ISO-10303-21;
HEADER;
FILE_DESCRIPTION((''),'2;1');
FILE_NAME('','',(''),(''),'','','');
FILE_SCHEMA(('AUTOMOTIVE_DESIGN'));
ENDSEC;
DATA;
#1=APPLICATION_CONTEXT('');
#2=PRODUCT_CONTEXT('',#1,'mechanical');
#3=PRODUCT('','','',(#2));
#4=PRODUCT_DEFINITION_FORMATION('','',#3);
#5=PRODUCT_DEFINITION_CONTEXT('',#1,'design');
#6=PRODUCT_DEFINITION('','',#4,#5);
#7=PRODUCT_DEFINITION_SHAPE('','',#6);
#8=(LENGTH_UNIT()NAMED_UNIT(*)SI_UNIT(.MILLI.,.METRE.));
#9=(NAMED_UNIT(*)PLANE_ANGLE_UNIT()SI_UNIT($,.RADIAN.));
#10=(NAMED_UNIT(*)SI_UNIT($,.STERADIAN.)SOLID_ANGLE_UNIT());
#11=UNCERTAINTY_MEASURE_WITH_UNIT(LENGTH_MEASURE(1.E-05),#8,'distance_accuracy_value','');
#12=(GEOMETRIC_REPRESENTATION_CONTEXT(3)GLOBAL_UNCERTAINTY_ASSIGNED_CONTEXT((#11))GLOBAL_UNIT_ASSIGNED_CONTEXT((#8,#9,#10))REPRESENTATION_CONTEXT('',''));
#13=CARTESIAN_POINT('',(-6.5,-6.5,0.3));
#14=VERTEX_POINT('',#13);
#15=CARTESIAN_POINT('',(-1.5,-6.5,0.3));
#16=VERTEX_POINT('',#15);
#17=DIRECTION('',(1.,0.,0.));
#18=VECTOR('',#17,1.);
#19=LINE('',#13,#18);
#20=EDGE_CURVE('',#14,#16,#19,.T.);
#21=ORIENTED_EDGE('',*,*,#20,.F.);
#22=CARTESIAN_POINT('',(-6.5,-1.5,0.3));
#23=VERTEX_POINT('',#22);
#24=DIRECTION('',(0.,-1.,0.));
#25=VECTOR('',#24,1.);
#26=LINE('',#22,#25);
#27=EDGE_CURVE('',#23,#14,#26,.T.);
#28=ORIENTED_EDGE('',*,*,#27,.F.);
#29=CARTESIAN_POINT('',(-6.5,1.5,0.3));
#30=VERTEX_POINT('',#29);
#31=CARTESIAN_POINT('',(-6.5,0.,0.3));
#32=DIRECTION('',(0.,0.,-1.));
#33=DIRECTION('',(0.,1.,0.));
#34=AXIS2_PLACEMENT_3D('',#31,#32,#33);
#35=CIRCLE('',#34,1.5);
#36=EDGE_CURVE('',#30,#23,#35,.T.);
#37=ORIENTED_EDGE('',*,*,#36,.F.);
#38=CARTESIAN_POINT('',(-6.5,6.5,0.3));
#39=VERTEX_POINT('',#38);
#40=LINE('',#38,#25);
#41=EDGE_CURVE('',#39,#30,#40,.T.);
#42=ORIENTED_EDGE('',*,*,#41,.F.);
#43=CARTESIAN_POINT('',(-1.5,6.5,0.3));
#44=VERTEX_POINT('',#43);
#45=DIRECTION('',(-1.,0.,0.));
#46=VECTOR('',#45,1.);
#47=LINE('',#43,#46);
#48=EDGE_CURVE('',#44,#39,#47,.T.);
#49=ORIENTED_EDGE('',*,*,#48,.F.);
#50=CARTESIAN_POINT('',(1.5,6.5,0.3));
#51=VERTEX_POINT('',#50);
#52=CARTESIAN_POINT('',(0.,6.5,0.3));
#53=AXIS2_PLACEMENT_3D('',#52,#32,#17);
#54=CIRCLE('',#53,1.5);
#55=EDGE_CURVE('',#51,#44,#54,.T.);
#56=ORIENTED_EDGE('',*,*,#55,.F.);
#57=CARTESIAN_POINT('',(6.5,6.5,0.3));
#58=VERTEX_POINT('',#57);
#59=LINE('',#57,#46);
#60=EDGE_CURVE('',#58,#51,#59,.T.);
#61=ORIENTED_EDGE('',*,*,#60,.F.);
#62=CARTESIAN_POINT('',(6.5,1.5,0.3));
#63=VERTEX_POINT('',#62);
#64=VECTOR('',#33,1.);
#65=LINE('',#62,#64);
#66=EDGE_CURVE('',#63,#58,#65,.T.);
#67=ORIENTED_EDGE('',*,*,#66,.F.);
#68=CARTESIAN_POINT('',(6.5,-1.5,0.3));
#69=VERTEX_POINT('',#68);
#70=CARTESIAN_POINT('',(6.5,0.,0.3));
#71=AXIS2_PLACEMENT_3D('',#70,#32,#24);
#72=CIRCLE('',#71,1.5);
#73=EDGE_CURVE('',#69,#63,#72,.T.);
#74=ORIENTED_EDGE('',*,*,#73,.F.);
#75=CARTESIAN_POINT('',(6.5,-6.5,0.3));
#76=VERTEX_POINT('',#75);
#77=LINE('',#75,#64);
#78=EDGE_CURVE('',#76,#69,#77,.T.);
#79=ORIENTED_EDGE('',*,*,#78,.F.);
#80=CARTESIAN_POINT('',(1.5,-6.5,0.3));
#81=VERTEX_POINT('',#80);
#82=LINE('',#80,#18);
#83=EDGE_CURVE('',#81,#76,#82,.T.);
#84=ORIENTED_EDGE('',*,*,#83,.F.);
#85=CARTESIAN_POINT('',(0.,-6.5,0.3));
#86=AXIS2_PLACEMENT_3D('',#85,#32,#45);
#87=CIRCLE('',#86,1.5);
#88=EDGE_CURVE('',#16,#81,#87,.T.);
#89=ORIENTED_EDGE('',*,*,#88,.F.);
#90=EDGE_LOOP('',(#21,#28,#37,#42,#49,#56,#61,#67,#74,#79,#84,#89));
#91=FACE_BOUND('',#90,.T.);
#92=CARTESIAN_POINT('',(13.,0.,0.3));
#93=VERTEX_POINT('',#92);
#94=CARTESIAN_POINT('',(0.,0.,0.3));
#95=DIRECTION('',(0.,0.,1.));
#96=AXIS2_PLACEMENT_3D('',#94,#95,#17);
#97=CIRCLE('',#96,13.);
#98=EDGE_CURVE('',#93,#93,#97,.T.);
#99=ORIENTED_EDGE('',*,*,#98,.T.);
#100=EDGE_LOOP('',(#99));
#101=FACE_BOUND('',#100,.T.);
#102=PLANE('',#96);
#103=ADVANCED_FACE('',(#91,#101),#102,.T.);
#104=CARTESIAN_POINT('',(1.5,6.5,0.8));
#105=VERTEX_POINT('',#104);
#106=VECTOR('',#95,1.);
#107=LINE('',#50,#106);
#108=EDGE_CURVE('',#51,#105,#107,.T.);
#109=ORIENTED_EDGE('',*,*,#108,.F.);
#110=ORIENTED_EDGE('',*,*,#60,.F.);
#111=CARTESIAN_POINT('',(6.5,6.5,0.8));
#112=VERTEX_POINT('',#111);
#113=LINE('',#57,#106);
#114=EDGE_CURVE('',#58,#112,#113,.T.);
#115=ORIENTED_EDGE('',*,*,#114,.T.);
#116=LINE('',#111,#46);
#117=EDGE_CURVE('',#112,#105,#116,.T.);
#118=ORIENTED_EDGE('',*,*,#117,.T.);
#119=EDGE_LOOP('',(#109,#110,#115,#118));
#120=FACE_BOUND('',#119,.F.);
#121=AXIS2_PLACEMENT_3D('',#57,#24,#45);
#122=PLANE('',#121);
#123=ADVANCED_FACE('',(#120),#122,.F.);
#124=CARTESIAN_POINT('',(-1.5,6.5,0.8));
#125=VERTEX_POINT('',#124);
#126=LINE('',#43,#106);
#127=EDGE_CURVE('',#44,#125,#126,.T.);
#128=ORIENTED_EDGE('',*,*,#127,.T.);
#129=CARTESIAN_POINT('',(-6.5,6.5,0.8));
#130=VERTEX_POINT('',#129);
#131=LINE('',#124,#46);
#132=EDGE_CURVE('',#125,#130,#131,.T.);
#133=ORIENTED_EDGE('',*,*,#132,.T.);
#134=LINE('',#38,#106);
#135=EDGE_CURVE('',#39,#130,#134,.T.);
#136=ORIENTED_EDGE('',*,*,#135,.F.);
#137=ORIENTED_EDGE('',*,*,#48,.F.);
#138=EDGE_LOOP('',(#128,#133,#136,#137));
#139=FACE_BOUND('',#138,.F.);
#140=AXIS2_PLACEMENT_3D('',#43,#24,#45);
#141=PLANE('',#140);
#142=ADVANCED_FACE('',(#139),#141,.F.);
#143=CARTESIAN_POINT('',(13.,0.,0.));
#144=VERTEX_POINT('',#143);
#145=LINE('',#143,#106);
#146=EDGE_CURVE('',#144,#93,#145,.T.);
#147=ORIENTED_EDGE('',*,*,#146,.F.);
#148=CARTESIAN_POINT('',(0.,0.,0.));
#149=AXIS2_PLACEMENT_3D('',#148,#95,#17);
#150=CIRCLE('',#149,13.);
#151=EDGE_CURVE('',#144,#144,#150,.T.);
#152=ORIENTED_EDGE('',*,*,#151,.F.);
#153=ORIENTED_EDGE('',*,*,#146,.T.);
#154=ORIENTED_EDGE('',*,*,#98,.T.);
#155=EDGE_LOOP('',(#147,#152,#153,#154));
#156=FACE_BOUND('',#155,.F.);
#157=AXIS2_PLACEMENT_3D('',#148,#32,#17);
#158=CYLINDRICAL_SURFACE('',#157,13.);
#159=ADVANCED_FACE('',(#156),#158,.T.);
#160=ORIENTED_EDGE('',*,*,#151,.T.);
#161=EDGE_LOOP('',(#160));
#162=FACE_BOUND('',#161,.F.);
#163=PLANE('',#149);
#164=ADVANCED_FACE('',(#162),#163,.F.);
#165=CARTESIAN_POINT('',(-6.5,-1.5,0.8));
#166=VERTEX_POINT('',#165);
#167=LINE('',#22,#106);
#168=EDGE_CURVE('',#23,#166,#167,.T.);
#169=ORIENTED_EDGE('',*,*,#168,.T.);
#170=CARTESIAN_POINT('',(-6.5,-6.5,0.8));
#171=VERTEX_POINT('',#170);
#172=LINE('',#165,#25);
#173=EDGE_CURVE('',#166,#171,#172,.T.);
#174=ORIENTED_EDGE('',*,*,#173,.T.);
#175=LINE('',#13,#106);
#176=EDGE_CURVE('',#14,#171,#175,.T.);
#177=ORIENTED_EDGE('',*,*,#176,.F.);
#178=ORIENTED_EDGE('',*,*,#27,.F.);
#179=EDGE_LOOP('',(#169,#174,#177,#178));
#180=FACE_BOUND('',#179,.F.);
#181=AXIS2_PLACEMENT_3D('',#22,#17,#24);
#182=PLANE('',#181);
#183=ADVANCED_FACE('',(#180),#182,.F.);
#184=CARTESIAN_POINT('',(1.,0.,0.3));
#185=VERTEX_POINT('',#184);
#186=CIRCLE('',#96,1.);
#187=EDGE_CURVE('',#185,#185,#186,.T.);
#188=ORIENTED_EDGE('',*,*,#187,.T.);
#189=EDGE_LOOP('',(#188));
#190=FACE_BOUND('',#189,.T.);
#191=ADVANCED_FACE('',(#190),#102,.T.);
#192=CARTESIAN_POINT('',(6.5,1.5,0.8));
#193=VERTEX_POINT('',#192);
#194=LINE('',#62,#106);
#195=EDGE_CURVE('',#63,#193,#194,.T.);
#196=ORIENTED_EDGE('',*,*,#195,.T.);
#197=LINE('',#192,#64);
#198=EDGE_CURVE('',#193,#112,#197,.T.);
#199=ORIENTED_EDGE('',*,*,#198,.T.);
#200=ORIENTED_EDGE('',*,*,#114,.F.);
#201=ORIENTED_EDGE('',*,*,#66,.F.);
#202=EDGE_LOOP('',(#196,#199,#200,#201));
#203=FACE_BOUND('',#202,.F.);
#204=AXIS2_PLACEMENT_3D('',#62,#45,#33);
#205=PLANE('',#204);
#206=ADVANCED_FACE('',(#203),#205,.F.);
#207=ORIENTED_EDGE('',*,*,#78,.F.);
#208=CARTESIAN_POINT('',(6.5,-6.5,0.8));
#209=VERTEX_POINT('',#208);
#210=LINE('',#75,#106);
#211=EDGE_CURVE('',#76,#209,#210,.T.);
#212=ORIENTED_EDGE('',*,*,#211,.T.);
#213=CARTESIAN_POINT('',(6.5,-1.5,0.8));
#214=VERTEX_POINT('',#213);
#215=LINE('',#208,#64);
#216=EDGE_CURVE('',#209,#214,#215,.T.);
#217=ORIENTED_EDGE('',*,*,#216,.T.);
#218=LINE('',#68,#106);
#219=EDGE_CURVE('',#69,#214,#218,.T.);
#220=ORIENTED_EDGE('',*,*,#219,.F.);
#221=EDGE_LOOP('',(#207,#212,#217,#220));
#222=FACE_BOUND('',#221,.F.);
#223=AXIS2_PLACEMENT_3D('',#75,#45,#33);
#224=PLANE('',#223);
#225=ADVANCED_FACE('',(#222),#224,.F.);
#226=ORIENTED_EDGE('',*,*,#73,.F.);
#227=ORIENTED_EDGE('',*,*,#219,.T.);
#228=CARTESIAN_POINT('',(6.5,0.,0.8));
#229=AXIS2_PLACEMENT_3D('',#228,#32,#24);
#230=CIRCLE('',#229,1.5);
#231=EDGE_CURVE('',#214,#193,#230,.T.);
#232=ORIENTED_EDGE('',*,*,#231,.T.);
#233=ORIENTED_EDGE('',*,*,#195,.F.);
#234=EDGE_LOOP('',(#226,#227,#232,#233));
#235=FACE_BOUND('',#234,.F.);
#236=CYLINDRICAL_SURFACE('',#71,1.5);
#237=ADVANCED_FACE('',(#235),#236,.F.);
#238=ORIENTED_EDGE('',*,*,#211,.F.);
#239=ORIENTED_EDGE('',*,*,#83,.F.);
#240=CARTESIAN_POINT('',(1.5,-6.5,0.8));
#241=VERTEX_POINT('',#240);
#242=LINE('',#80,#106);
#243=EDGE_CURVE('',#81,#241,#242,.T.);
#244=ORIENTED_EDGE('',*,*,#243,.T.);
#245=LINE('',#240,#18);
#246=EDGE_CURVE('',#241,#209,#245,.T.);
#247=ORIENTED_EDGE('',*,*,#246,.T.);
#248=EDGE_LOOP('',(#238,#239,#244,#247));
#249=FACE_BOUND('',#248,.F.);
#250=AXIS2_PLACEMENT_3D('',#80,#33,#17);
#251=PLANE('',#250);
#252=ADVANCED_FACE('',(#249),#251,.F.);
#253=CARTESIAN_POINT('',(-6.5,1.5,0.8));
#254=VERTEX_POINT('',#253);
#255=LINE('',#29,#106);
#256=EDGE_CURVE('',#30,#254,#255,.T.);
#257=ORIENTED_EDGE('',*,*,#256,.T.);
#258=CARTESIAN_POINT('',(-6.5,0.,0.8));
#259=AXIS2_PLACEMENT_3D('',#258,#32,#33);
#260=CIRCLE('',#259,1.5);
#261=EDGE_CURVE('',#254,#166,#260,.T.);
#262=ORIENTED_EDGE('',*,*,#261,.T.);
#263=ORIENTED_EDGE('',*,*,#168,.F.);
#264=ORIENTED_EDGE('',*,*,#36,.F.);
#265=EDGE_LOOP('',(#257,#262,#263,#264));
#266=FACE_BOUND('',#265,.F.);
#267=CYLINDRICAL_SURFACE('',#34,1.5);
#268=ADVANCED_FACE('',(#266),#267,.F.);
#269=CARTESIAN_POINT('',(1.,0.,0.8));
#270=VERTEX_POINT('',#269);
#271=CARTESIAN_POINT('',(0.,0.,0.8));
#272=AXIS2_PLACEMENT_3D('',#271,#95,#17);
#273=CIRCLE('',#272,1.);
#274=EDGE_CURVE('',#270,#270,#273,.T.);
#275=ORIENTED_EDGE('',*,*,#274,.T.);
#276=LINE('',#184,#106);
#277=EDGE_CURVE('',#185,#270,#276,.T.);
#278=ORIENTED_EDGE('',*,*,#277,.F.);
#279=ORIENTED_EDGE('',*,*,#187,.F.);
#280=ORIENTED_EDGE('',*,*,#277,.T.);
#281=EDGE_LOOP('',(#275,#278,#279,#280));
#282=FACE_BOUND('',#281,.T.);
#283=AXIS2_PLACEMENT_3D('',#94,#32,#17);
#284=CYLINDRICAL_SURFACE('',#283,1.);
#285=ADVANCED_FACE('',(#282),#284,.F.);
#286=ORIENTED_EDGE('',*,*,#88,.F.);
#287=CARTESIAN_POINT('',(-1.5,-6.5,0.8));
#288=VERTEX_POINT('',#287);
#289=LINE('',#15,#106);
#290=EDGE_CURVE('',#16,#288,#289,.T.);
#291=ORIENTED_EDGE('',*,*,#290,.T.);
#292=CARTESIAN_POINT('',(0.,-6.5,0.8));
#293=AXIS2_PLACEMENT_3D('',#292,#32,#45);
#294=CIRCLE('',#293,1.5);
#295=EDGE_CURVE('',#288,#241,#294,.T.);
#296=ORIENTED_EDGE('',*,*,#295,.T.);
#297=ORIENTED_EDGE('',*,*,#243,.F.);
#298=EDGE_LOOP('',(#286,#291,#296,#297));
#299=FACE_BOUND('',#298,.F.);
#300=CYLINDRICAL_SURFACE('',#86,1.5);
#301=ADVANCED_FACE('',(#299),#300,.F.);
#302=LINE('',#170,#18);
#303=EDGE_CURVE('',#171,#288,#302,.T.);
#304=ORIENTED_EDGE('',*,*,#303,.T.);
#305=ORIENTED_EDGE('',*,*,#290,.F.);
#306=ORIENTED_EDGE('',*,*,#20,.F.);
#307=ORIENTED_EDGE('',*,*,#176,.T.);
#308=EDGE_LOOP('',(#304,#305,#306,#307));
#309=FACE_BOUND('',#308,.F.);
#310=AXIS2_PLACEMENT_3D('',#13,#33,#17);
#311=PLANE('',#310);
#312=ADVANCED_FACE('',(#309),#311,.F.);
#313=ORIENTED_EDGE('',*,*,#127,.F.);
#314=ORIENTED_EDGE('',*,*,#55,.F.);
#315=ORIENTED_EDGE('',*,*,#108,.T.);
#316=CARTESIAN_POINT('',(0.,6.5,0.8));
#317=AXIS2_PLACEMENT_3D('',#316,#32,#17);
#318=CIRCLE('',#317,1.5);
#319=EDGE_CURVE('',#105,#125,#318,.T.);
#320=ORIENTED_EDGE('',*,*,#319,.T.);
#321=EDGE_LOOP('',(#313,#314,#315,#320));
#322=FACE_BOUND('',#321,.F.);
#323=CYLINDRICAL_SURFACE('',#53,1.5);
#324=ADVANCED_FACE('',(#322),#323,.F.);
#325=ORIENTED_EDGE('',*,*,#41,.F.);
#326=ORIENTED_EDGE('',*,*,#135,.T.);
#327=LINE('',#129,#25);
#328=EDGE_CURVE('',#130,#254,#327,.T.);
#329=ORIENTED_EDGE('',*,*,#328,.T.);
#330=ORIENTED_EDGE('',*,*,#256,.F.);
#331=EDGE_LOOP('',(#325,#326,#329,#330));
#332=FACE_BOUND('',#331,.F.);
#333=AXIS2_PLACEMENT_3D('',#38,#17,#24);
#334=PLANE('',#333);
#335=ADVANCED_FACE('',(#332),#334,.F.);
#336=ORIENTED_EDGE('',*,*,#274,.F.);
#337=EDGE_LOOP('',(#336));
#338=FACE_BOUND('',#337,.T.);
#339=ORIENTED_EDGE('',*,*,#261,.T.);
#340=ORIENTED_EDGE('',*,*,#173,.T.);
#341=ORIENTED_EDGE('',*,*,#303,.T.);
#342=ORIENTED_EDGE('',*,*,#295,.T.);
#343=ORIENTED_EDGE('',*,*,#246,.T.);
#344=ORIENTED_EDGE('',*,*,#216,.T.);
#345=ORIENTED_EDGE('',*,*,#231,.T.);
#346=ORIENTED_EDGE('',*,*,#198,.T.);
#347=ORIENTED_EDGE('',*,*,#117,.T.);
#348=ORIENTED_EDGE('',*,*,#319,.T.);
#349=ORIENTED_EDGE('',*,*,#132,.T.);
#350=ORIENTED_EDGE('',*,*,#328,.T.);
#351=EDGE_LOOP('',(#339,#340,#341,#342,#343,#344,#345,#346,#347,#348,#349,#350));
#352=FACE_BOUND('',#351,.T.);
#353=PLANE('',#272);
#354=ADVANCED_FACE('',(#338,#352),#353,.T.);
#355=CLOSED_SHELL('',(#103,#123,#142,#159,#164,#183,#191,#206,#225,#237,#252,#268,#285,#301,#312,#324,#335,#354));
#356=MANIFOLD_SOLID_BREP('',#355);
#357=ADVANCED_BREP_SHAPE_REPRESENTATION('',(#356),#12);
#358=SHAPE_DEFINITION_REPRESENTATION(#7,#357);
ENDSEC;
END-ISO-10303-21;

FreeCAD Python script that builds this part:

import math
import FreeCAD as App
import Part
import Sketcher

doc = App.newDocument("Part")
params = doc.addObject("Spreadsheet::Sheet", "Params")
for row, (alias, value) in enumerate([
    ("sketch1_diameter", "26 mm"),
    ("pad1_length", "0.3 mm"),
    ("sketch2_diameter", "2 mm"),
    ("sketch2_radius", "1.5 mm"),
    ("sketch2_width", "5 mm"),
    ("pad2_length", "0.5 mm"),
], start=1):
    params.set(f"A{row}", alias)
    params.set(f"B{row}", "=" + value)
    params.setAlias(f"B{row}", alias)

body = doc.addObject("PartDesign::Body", "Body")

# Sketch on XY plane
sketch1 = body.newObject("Sketcher::SketchObject", "Sketch")
sketch1.AttachmentSupport = (doc.getObject("XY_Plane"), [""])
sketch1.MapMode = "FlatFace"
sketch1.addGeometry(Part.Circle(App.Vector(0, 0, 0), App.Vector(0, 0, 1), 13), False)
sketch1.addConstraint([
    Sketcher.Constraint("Coincident", 0, 3, -1, 1),
    Sketcher.Constraint("Diameter", 0, 26.0),
])
sketch1.setExpression("Constraints[1]", "Params.sketch1_diameter")
pad1 = body.newObject("PartDesign::Pad", "Pad")
pad1.Profile = sketch1
pad1.setExpression("Length", "Params.pad1_length")

# Sketch on XY plane
sketch2 = body.newObject("Sketcher::SketchObject", "Sketch001")
sketch2.AttachmentSupport = (doc.getObject("XY_Plane"), [""])
sketch2.MapMode = "FlatFace"
sketch2.AttachmentOffset = App.Placement(App.Vector(0, 0, 0.3), App.Rotation())
sketch2.addGeometry([
    Part.LineSegment(App.Vector(6.5, 1.5, 0), App.Vector(6.5, 6.5, 0)),  # 0
    Part.LineSegment(App.Vector(6.5, 6.5, 0), App.Vector(1.5, 6.5, 0)),  # 1
    Part.ArcOfCircle(Part.Circle(App.Vector(0, 6.5, 0), App.Vector(0, 0, 1), 1.5), math.radians(180), math.radians(360)),  # 2
    Part.LineSegment(App.Vector(-1.5, 6.5, 0), App.Vector(-6.5, 6.5, 0)),  # 3
    Part.LineSegment(App.Vector(-6.5, 6.5, 0), App.Vector(-6.5, 1.5, 0)),  # 4
    Part.ArcOfCircle(Part.Circle(App.Vector(-6.5, 0, 0), App.Vector(0, 0, 1), 1.5), math.radians(-90), math.radians(90)),  # 5
    Part.LineSegment(App.Vector(-6.5, -1.5, 0), App.Vector(-6.5, -6.5, 0)),  # 6
    Part.LineSegment(App.Vector(-6.5, -6.5, 0), App.Vector(-1.5, -6.5, 0)),  # 7
    Part.ArcOfCircle(Part.Circle(App.Vector(0, -6.5, 0), App.Vector(0, 0, 1), 1.5), math.radians(0), math.radians(180)),  # 8
    Part.LineSegment(App.Vector(1.5, -6.5, 0), App.Vector(6.5, -6.5, 0)),  # 9
    Part.LineSegment(App.Vector(6.5, -6.5, 0), App.Vector(6.5, -1.5, 0)),  # 10
    Part.ArcOfCircle(Part.Circle(App.Vector(6.5, 0, 0), App.Vector(0, 0, 1), 1.5), math.radians(90), math.radians(270)),  # 11
    Part.Circle(App.Vector(0, 0, 0), App.Vector(0, 0, 1), 1),  # 12
], False)
sketch2.addConstraint([
    Sketcher.Constraint("Coincident", 0, 2, 1, 1),
    Sketcher.Constraint("Coincident", 1, 2, 2, 2),
    Sketcher.Constraint("Coincident", 2, 1, 3, 1),
    Sketcher.Constraint("Coincident", 3, 2, 4, 1),
    Sketcher.Constraint("Coincident", 4, 2, 5, 2),
    Sketcher.Constraint("Coincident", 5, 1, 6, 1),
    Sketcher.Constraint("Coincident", 6, 2, 7, 1),
    Sketcher.Constraint("Coincident", 7, 2, 8, 2),
    Sketcher.Constraint("Coincident", 8, 1, 9, 1),
    Sketcher.Constraint("Coincident", 9, 2, 10, 1),
    Sketcher.Constraint("Coincident", 10, 2, 11, 2),
    Sketcher.Constraint("Coincident", 11, 1, 0, 1),
    Sketcher.Constraint("Vertical", 0),
    Sketcher.Constraint("Horizontal", 1),
    Sketcher.Constraint("Horizontal", 3),
    Sketcher.Constraint("Vertical", 4),
    Sketcher.Constraint("Vertical", 6),
    Sketcher.Constraint("Horizontal", 7),
    Sketcher.Constraint("Horizontal", 9),
    Sketcher.Constraint("Vertical", 10),
    Sketcher.Constraint("Coincident", 12, 3, -1, 1),
    Sketcher.Constraint("Equal", 2, 5),
    Sketcher.Constraint("Equal", 5, 8),
    Sketcher.Constraint("Equal", 8, 11),
    Sketcher.Constraint("Symmetric", 2, 3, 8, 3, -1, 1),
    Sketcher.Constraint("Symmetric", 5, 3, 11, 3, -1, 1),
    Sketcher.Constraint("Symmetric", 0, 2, 6, 2, -1, 1),
    Sketcher.Constraint("Symmetric", 3, 2, 9, 2, -1, 1),
    Sketcher.Constraint("Symmetric", 1, 2, 2, 1, -2),
    Sketcher.Constraint("Symmetric", 5, 1, 10, 2, -2),
    Sketcher.Constraint("Horizontal", 2, 3, 0, 2),
    Sketcher.Constraint("Vertical", 11, 3, 0, 2),
    Sketcher.Constraint("Equal", 9, 0),
    Sketcher.Constraint("Diameter", 12, 2.0),
    Sketcher.Constraint("Radius", 2, 1.5),
    Sketcher.Constraint("DistanceX", 1, 2, 1, 1, 5.0),
])
sketch2.setExpression("Constraints[33]", "Params.sketch2_diameter")
sketch2.setExpression("Constraints[34]", "Params.sketch2_radius")
sketch2.setExpression("Constraints[35]", "Params.sketch2_width")
pad2 = body.newObject("PartDesign::Pad", "Pad001")
pad2.Profile = sketch2
pad2.setExpression("Length", "Params.pad2_length")

doc.recompute()
